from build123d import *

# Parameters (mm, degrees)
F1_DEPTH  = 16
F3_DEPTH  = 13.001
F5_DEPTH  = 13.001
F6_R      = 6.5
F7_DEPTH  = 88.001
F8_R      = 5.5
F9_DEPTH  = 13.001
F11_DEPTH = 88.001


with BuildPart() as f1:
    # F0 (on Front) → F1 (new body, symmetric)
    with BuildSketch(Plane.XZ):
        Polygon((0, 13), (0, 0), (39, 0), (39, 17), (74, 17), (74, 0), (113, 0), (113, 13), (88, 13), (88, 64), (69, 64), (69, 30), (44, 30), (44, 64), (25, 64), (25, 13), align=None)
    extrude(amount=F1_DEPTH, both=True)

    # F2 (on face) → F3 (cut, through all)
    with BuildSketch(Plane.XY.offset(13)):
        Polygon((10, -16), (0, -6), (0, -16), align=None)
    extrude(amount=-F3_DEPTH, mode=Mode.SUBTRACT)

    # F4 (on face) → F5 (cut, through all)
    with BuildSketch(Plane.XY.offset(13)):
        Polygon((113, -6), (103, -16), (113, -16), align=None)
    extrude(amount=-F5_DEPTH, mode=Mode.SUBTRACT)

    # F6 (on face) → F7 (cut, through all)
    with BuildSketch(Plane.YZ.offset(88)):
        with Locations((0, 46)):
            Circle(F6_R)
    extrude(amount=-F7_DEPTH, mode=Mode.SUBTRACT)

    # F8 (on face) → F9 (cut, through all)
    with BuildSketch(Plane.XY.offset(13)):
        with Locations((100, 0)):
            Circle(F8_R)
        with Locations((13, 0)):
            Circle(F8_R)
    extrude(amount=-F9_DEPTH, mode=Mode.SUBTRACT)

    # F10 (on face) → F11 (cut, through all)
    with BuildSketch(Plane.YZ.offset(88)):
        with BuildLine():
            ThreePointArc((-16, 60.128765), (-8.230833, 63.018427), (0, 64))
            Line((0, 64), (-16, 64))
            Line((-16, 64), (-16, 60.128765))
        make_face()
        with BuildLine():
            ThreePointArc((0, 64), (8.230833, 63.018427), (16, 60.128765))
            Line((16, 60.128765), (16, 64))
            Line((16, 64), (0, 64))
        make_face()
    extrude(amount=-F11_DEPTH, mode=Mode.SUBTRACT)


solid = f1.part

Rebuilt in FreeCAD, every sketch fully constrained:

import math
import FreeCAD as App
import Part
import Sketcher
Q = App.Units.Quantity


def add_polygon(sketch, points):
    """Adds a closed chain of lines whose ends are joined by coincident constraints."""
    first, n = sketch.GeometryCount, len(points)
    for a, b in zip(points, points[1:] + points[:1]):
        sketch.addGeometry(Part.LineSegment(App.Vector(*a, 0), App.Vector(*b, 0)), False)
    for i in range(n):
        sketch.addConstraint(Sketcher.Constraint("Coincident", first + i, 2, first + (i + 1) % n, 1))

doc = App.newDocument("Part")
params = doc.addObject("Spreadsheet::Sheet", "Params")
for row, (alias, value) in enumerate([
    ("sketch1_width", "39 mm"),
    ("sketch1_width2", "35 mm"),
    ("sketch1_width3", "25 mm"),
    ("sketch1_height", "13 mm"),
    ("sketch1_height2", "17 mm"),
    ("pad1_length", "32 mm"),
    ("sketch2_width", "10 mm"),
    ("sketch3_width", "10 mm"),
    ("sketch4_diameter", "13 mm"),
    ("sketch5_diameter", "11 mm"),
    ("sketch6_width", "16 mm"),
], start=1):
    params.set(f"A{row}", alias)
    params.set(f"B{row}", "=" + value)
    params.setAlias(f"B{row}", alias)

body = doc.addObject("PartDesign::Body", "Body")

# Sketch on XZ plane
sketch1 = body.newObject("Sketcher::SketchObject", "Sketch")
sketch1.AttachmentSupport = (doc.getObject("XZ_Plane"), [""])
sketch1.MapMode = "FlatFace"
add_polygon(sketch1, [(0, 13), (0, 0), (39, 0), (39, 17), (74, 17), (74, 0), (113, 0), (113, 13), (88, 13), (88, 64), (69, 64), (69, 30), (44, 30), (44, 64), (25, 64), (25, 13)])  # lines 0-15
sketch1.addConstraint([
    Sketcher.Constraint("Vertical", 0),
    Sketcher.Constraint("Horizontal", 1),
    Sketcher.Constraint("Vertical", 2),
    Sketcher.Constraint("Horizontal", 3),
    Sketcher.Constraint("Vertical", 4),
    Sketcher.Constraint("Horizontal", 5),
    Sketcher.Constraint("Vertical", 6),
    Sketcher.Constraint("Horizontal", 7),
    Sketcher.Constraint("Vertical", 8),
    Sketcher.Constraint("Horizontal", 9),
    Sketcher.Constraint("Vertical", 10),
    Sketcher.Constraint("Horizontal", 11),
    Sketcher.Constraint("Vertical", 12),
    Sketcher.Constraint("Horizontal", 13),
    Sketcher.Constraint("Vertical", 14),
    Sketcher.Constraint("Horizontal", 15),
    Sketcher.Constraint("Coincident", 0, 2, -1, 1),
    Sketcher.Constraint("PointOnObject", 4, 2, -1),
    Sketcher.Constraint("Horizontal", 9, 2, 12, 2),
    Sketcher.Constraint("Horizontal", 7, 2, 14, 2),
    Sketcher.Constraint("Equal", 1, 5),
    Sketcher.Constraint("Equal", 7, 11),
    Sketcher.Constraint("Equal", 9, 13),
    Sketcher.Constraint("Equal", 11, 15),
    Sketcher.Constraint("DistanceX", 1, 1, 1, 2, Q("39 mm")),
    Sketcher.Constraint("DistanceX", 3, 1, 3, 2, Q("35 mm")),
    Sketcher.Constraint("DistanceX", 7, 2, 7, 1, Q("25 mm")),
    Sketcher.Constraint("DistanceY", 0, 2, 0, 1, Q("13 mm")),
    Sketcher.Constraint("DistanceY", 2, 1, 2, 2, Q("17 mm")),
    Sketcher.Constraint("DistanceY", 8, 1, 8, 2, Q("51 mm")),
    Sketcher.Constraint("DistanceY", 10, 2, 10, 1, Q("34 mm")),
])
sketch1.setExpression("Constraints[40]", "Params.sketch1_width")
sketch1.setExpression("Constraints[41]", "Params.sketch1_width2")
sketch1.setExpression("Constraints[42]", "Params.sketch1_width3")
sketch1.setExpression("Constraints[43]", "Params.sketch1_height")
sketch1.setExpression("Constraints[44]", "Params.sketch1_height2")
pad1 = body.newObject("PartDesign::Pad", "Pad")
pad1.Profile = sketch1
pad1.setExpression("Length", "Params.pad1_length")
pad1.Midplane = True

# Sketch on XY plane
sketch2 = body.newObject("Sketcher::SketchObject", "Sketch001")
sketch2.AttachmentSupport = (doc.getObject("XY_Plane"), [""])
sketch2.MapMode = "FlatFace"
sketch2.AttachmentOffset = App.Placement(App.Vector(0, 0, 13), App.Rotation())
add_polygon(sketch2, [(10, -16), (0, -6), (0, -16)])  # lines 0-2
sketch2.addConstraint([
    Sketcher.Constraint("Vertical", 1),
    Sketcher.Constraint("Horizontal", 2),
    Sketcher.Constraint("PointOnObject", 0, 2, -2),
    Sketcher.Constraint("Equal", 2, 1),
    Sketcher.Constraint("DistanceX", 2, 1, 2, 2, Q("10 mm")),
    Sketcher.Constraint("DistanceY", 0, 2, -1, 1, Q("6 mm")),
])
sketch2.setExpression("Constraints[7]", "Params.sketch2_width")
pocket1 = body.newObject("PartDesign::Pocket", "Pocket")
pocket1.Profile = sketch2
pocket1.Type = "ThroughAll"

# Sketch on XY plane
sketch3 = body.newObject("Sketcher::SketchObject", "Sketch002")
sketch3.AttachmentSupport = (doc.getObject("XY_Plane"), [""])
sketch3.MapMode = "FlatFace"
sketch3.AttachmentOffset = App.Placement(App.Vector(0, 0, 13), App.Rotation())
add_polygon(sketch3, [(113, -6), (103, -16), (113, -16)])  # lines 0-2
sketch3.addConstraint([
    Sketcher.Constraint("Horizontal", 1),
    Sketcher.Constraint("Vertical", 2),
    Sketcher.Constraint("Equal", 1, 2),
    Sketcher.Constraint("DistanceX", 1, 1, 1, 2, Q("10 mm")),
    Sketcher.Constraint("DistanceX", -1, 1, 0, 2, Q("103 mm")),
    Sketcher.Constraint("DistanceY", 0, 2, -1, 1, Q("16 mm")),
])
sketch3.setExpression("Constraints[6]", "Params.sketch3_width")
pocket2 = body.newObject("PartDesign::Pocket", "Pocket001")
pocket2.Profile = sketch3
pocket2.Type = "ThroughAll"

# Sketch on YZ plane
sketch4 = body.newObject("Sketcher::SketchObject", "Sketch003")
sketch4.AttachmentSupport = (doc.getObject("YZ_Plane"), [""])
sketch4.MapMode = "FlatFace"
sketch4.AttachmentOffset = App.Placement(App.Vector(0, 0, 88), App.Rotation())
sketch4.addGeometry(Part.Circle(App.Vector(0, 46, 0), App.Vector(0, 0, 1), 6), False)
sketch4.addConstraint([
    Sketcher.Constraint("PointOnObject", 0, 3, -2),
    Sketcher.Constraint("Diameter", 0, Q("13 mm")),
    Sketcher.Constraint("DistanceY", -1, 1, 0, 3, Q("46 mm")),
])
sketch4.setExpression("Constraints[1]", "Params.sketch4_diameter")
pocket3 = body.newObject("PartDesign::Pocket", "Pocket002")
pocket3.Profile = sketch4
pocket3.Type = "ThroughAll"

# Sketch on XY plane
sketch5 = body.newObject("Sketcher::SketchObject", "Sketch004")
sketch5.AttachmentSupport = (doc.getObject("XY_Plane"), [""])
sketch5.MapMode = "FlatFace"
sketch5.AttachmentOffset = App.Placement(App.Vector(0, 0, 13), App.Rotation())
sketch5.addGeometry([
    Part.Circle(App.Vector(100, 0, 0), App.Vector(0, 0, 1), 6),
    Part.Circle(App.Vector(13, 0, 0), App.Vector(0, 0, 1), 6),
], False)
sketch5.addConstraint([
    Sketcher.Constraint("Equal", 0, 1),
    Sketcher.Constraint("PointOnObject", 0, 3, -1),
    Sketcher.Constraint("PointOnObject", 1, 3, -1),
    Sketcher.Constraint("Diameter", 0, Q("11 mm")),
    Sketcher.Constraint("DistanceX", -1, 1, 0, 3, Q("100 mm")),
    Sketcher.Constraint("DistanceX", -1, 1, 1, 3, Q("13 mm")),
])
sketch5.setExpression("Constraints[3]", "Params.sketch5_diameter")
pocket4 = body.newObject("PartDesign::Pocket", "Pocket003")
pocket4.Profile = sketch5
pocket4.Type = "ThroughAll"

# Sketch on YZ plane
sketch6 = body.newObject("Sketcher::SketchObject", "Sketch005")
sketch6.AttachmentSupport = (doc.getObject("YZ_Plane"), [""])
sketch6.MapMode = "FlatFace"
sketch6.AttachmentOffset = App.Placement(App.Vector(0, 0, 88), App.Rotation())
sketch6.addGeometry([
    Part.ArcOfCircle(Part.Circle(App.Vector(0, 29, 0), App.Vector(0, 0, 1), 35), math.radians(90), math.radians(117)),  # 0
    Part.LineSegment(App.Vector(0, 64, 0), App.Vector(-16, 64, 0)),  # 1
    Part.LineSegment(App.Vector(-16, 64, 0), App.Vector(-16, 60.1, 0)),  # 2
    Part.ArcOfCircle(Part.Circle(App.Vector(0, 29, 0), App.Vector(0, 0, 1), 35), math.radians(63), math.radians(90)),  # 3
    Part.LineSegment(App.Vector(16, 60.1, 0), App.Vector(16, 64, 0)),  # 4
    Part.LineSegment(App.Vector(16, 64, 0), App.Vector(0, 64, 0)),  # 5
], False)
sketch6.addConstraint([
    Sketcher.Constraint("Tangent", 0, 1, 1, 1),
    Sketcher.Constraint("Coincident", 1, 2, 2, 1),
    Sketcher.Constraint("Coincident", 2, 2, 0, 2),
    Sketcher.Constraint("Coincident", 3, 1, 4, 1),
    Sketcher.Constraint("Coincident", 4, 2, 5, 1),
    Sketcher.Constraint("Tangent", 5, 2, 3, 2),
    Sketcher.Constraint("Horizontal", 1),
    Sketcher.Constraint("Vertical", 2),
    Sketcher.Constraint("Vertical", 4),
    Sketcher.Constraint("Horizontal", 5),
    Sketcher.Constraint("Coincident", 3, 3, 0, 3),
    Sketcher.Constraint("Equal", 0, 3),
    Sketcher.Constraint("Symmetric", 2, 2, 3, 1, -2),
    Sketcher.Constraint("DistanceX", 1, 2, 1, 1, Q("16 mm")),
    Sketcher.Constraint("DistanceY", -1, 1, 0, 1, Q("64 mm")),
    Sketcher.Constraint("Radius", 0, Q("35.000009 mm")),
])
sketch6.setExpression("Constraints[13]", "Params.sketch6_width")
pocket5 = body.newObject("PartDesign::Pocket", "Pocket004")
pocket5.Profile = sketch6
pocket5.Type = "ThroughAll"

doc.recompute()
